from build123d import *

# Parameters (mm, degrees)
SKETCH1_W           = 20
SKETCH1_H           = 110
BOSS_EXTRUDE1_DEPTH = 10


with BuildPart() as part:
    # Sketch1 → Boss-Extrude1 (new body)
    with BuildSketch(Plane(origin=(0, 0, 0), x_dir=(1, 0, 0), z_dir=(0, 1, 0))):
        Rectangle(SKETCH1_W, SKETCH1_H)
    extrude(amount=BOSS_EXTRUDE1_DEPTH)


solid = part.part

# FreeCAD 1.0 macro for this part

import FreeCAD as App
import Part
import Sketcher

V = App.Vector
Q = App.Units.Quantity


def add_polygon(sketch, points):
    """Adds a closed chain of lines whose ends are joined by coincident constraints."""
    first, n = sketch.GeometryCount, len(points)
    for a, b in zip(points, points[1:] + points[:1]):
        sketch.addGeometry(Part.LineSegment(App.Vector(*a, 0), App.Vector(*b, 0)), False)
    for i in range(n):
        sketch.addConstraint(Sketcher.Constraint("Coincident", first + i, 2, first + (i + 1) % n, 1))

doc = App.newDocument("Part")
body = doc.addObject("PartDesign::Body", "Body")

# Sketch on XZ plane
sketch1 = body.newObject("Sketcher::SketchObject", "Sketch")
sketch1.AttachmentSupport = (doc.getObject("XZ_Plane"), [""])
sketch1.MapMode = "FlatFace"
add_polygon(sketch1, [(-10, -55), (-10, 55), (10, 55), (10, -55)])  # lines 0-3
sketch1.addConstraint([
    Sketcher.Constraint("Vertical", 0),
    Sketcher.Constraint("Horizontal", 1),
    Sketcher.Constraint("Vertical", 2),
    Sketcher.Constraint("Horizontal", 3),
    Sketcher.Constraint("Symmetric", 0, 2, 2, 2, -1, 1),
    Sketcher.Constraint("DistanceX", 1, 1, 1, 2, Q("20 mm")),
    Sketcher.Constraint("DistanceY", 0, 1, 0, 2, Q("110 mm")),
])
pad1 = body.newObject("PartDesign::Pad", "Pad")
pad1.Profile = sketch1
pad1.Length = 10
pad1.Reversed = True

doc.recompute()
